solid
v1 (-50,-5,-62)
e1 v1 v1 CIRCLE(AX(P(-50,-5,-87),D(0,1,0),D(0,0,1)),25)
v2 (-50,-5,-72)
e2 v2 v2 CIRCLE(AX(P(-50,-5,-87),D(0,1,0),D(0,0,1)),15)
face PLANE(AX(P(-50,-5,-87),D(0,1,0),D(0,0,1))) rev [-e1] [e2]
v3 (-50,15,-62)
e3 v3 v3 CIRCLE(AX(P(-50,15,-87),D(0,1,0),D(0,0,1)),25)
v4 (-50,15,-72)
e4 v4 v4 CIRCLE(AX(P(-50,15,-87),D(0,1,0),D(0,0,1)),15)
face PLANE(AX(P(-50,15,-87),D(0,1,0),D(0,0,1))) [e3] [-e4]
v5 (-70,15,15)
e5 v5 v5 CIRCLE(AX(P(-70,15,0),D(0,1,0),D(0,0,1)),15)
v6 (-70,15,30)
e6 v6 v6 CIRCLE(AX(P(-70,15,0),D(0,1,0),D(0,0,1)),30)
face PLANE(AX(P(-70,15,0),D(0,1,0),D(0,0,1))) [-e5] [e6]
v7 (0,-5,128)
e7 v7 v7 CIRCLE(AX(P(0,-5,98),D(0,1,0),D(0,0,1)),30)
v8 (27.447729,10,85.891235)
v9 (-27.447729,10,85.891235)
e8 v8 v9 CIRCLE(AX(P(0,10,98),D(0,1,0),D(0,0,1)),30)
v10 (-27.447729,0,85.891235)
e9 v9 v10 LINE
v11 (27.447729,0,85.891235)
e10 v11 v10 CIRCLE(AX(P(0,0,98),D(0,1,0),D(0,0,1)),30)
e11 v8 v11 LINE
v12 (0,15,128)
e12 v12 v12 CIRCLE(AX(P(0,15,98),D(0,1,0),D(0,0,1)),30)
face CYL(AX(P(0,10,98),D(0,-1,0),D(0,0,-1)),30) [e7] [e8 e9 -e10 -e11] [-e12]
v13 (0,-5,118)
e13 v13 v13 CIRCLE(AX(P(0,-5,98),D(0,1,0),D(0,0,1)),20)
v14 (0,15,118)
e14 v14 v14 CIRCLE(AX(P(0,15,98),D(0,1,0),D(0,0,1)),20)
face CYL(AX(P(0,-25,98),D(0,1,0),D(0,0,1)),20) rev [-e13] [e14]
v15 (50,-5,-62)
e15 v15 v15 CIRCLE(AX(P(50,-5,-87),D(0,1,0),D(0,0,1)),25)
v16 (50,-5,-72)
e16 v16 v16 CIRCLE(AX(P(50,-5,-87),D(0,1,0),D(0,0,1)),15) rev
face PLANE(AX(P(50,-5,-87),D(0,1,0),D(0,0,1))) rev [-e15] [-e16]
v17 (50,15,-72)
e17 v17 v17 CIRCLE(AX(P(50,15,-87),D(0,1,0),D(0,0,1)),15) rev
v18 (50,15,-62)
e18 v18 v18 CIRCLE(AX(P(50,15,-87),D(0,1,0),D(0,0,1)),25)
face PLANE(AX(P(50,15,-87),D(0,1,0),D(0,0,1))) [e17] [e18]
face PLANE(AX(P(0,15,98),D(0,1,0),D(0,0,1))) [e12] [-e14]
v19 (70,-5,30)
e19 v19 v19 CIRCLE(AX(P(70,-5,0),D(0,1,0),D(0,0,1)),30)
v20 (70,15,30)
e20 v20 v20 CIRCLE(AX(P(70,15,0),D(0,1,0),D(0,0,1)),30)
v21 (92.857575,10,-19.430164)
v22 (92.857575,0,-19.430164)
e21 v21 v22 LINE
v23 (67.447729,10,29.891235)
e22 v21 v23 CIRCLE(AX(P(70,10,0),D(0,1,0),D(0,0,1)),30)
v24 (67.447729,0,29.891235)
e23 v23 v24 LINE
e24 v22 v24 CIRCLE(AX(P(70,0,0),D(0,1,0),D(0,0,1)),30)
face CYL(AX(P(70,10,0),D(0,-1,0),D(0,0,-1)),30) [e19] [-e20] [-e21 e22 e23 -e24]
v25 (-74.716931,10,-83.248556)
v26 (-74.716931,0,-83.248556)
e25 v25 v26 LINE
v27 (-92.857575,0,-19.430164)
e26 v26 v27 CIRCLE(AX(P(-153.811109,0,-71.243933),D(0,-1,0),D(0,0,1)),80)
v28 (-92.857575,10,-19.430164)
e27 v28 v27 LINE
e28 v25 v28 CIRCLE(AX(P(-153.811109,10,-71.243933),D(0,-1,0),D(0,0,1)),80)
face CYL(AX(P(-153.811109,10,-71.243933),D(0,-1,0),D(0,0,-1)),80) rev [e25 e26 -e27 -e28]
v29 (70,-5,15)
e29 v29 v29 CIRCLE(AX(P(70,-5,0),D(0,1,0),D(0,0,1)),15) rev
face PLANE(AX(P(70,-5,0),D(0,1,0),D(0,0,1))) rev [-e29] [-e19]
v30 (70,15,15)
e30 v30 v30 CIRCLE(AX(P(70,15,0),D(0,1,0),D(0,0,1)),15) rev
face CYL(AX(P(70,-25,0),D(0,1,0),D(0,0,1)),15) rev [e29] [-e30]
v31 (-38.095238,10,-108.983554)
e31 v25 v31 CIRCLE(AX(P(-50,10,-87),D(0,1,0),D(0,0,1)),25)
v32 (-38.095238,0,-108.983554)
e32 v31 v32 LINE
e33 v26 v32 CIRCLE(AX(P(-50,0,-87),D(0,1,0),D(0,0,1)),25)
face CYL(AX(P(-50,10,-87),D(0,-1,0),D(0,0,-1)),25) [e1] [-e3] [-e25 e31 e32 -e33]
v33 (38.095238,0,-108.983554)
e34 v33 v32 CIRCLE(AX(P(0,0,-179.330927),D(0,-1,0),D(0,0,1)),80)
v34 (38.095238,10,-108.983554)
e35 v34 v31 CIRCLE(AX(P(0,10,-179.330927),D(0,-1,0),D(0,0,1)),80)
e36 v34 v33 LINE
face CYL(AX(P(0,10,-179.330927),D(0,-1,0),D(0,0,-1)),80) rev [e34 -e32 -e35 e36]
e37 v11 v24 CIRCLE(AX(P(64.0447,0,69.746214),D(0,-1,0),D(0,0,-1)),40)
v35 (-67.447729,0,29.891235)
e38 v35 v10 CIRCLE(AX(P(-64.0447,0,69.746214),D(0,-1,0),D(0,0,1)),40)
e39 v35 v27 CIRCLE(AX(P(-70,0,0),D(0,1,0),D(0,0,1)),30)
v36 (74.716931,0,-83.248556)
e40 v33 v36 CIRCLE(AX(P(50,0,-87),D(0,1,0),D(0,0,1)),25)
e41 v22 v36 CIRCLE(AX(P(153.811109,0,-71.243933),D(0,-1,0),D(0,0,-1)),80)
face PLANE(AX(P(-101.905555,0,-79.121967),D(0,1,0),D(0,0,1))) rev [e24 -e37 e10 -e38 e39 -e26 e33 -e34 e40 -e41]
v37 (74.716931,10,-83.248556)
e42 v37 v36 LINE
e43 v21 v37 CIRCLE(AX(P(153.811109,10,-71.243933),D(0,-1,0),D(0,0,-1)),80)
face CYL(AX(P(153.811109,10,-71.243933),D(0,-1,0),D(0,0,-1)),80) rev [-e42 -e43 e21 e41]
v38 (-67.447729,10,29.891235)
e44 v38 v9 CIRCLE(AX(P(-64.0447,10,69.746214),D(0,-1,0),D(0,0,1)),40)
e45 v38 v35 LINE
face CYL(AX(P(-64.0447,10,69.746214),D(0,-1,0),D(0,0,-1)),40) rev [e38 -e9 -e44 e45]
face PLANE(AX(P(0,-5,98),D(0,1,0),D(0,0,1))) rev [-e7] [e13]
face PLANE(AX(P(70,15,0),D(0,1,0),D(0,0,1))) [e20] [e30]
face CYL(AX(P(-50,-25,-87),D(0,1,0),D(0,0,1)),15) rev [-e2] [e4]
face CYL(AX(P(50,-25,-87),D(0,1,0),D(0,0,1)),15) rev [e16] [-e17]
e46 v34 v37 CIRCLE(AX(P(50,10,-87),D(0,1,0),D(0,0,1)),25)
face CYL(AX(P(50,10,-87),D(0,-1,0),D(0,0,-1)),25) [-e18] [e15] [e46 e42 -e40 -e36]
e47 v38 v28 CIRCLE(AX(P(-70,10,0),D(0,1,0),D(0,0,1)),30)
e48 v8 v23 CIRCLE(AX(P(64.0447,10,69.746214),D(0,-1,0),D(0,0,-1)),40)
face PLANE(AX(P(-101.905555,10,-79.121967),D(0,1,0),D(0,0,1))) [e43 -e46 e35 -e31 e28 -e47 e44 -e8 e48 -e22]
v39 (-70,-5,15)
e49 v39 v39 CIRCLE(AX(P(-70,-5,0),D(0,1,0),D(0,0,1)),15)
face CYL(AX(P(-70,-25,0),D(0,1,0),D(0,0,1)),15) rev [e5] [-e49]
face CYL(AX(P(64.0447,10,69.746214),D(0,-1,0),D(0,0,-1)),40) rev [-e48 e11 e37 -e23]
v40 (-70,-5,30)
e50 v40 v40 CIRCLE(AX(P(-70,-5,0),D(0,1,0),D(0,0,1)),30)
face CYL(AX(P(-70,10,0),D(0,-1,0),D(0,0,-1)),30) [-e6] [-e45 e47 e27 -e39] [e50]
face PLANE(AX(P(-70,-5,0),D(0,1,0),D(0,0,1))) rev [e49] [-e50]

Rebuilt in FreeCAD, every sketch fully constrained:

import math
import FreeCAD as App
import Part
import Sketcher

doc = App.newDocument("Part")
body = doc.addObject("PartDesign::Body", "Body")

sketch1 = doc.addObject("Sketcher::SketchObject", "Sketch")
body.addObject(sketch1)
sketch1.AttachmentSupport = (doc.XZ_Plane, [""])
sketch1.MapMode = "FlatFace"
sketch1.addGeometry(Part.ArcOfCircle(Part.Circle(App.Vector(-50, -87, 0), App.Vector(0, 0, 1), 25), math.radians(171), math.radians(298)), False)
sketch1.addGeometry(Part.ArcOfCircle(Part.Circle(App.Vector(-154, -71, 0), App.Vector(0, 0, 1), 80), math.radians(-9), math.radians(40)), False)
sketch1.addGeometry(Part.ArcOfCircle(Part.Circle(App.Vector(-70, 0, 0), App.Vector(0, 0, 1), 30), math.radians(85), math.radians(220)), False)
sketch1.addGeometry(Part.ArcOfCircle(Part.Circle(App.Vector(-64, 70, 0), App.Vector(0, 0, 1), 40), math.radians(-95), math.radians(24)), False)
sketch1.addGeometry(Part.ArcOfCircle(Part.Circle(App.Vector(0, 98, 0), App.Vector(0, 0, 1), 30), math.radians(-24), math.radians(204)), False)
sketch1.addGeometry(Part.ArcOfCircle(Part.Circle(App.Vector(64, 70, 0), App.Vector(0, 0, 1), 40), math.radians(156), math.radians(275)), False)
sketch1.addGeometry(Part.ArcOfCircle(Part.Circle(App.Vector(70, 0, 0), App.Vector(0, 0, 1), 30), math.radians(-40), math.radians(95)), False)
sketch1.addGeometry(Part.ArcOfCircle(Part.Circle(App.Vector(154, -71, 0), App.Vector(0, 0, 1), 80), math.radians(140), math.radians(189)), False)
sketch1.addGeometry(Part.ArcOfCircle(Part.Circle(App.Vector(50, -87, 0), App.Vector(0, 0, 1), 25), math.radians(-118), math.radians(9)), False)
sketch1.addGeometry(Part.ArcOfCircle(Part.Circle(App.Vector(0, -179, 0), App.Vector(0, 0, 1), 80), math.radians(62), math.radians(118)), False)
sketch1.addGeometry(Part.Circle(App.Vector(0, 98, 0), App.Vector(0, 0, 1), 20), False)
sketch1.addGeometry(Part.Circle(App.Vector(-70, 0, 0), App.Vector(0, 0, 1), 15), False)
sketch1.addGeometry(Part.Circle(App.Vector(-50, -87, 0), App.Vector(0, 0, 1), 15), False)
sketch1.addGeometry(Part.Circle(App.Vector(70, 0, 0), App.Vector(0, 0, 1), 15), False)
sketch1.addGeometry(Part.Circle(App.Vector(50, -87, 0), App.Vector(0, 0, 1), 15), False)
sketch1.addConstraint(Sketcher.Constraint("Tangent", 0, 1, 1, 1))
sketch1.addConstraint(Sketcher.Constraint("Tangent", 1, 2, 2, 2))
sketch1.addConstraint(Sketcher.Constraint("Tangent", 2, 1, 3, 1))
sketch1.addConstraint(Sketcher.Constraint("Tangent", 3, 2, 4, 2))
sketch1.addConstraint(Sketcher.Constraint("Tangent", 4, 1, 5, 1))
sketch1.addConstraint(Sketcher.Constraint("Tangent", 5, 2, 6, 2))
sketch1.addConstraint(Sketcher.Constraint("Tangent", 6, 1, 7, 1))
sketch1.addConstraint(Sketcher.Constraint("Tangent", 7, 2, 8, 2))
sketch1.addConstraint(Sketcher.Constraint("Tangent", 8, 1, 9, 1))
sketch1.addConstraint(Sketcher.Constraint("Tangent", 9, 2, 0, 2))
sketch1.addConstraint(Sketcher.Constraint("Coincident", 10, 3, 4, 3))
sketch1.addConstraint(Sketcher.Constraint("Coincident", 11, 3, 2, 3))
sketch1.addConstraint(Sketcher.Constraint("Coincident", 12, 3, 0, 3))
sketch1.addConstraint(Sketcher.Constraint("Coincident", 13, 3, 6, 3))
sketch1.addConstraint(Sketcher.Constraint("Coincident", 14, 3, 8, 3))
sketch1.addConstraint(Sketcher.Constraint("Equal", 2, 4))
sketch1.addConstraint(Sketcher.Constraint("Equal", 3, 5))
sketch1.addConstraint(Sketcher.Constraint("Equal", 4, 6))
sketch1.addConstraint(Sketcher.Constraint("Equal", 1, 7))
sketch1.addConstraint(Sketcher.Constraint("Equal", 0, 8))
sketch1.addConstraint(Sketcher.Constraint("Equal", 7, 9))
sketch1.addConstraint(Sketcher.Constraint("Equal", 11, 12))
sketch1.addConstraint(Sketcher.Constraint("Equal", 12, 13))
sketch1.addConstraint(Sketcher.Constraint("Equal", 13, 14))
sketch1.addConstraint(Sketcher.Constraint("Symmetric", 2, 3, 6, 3, -1, 1))
sketch1.addConstraint(Sketcher.Constraint("Symmetric", 3, 3, 5, 3, -2))
sketch1.addConstraint(Sketcher.Constraint("Symmetric", 0, 3, 8, 3, -2))
sketch1.addConstraint(Sketcher.Constraint("Diameter", 10, 40.0))
sketch1.addConstraint(Sketcher.Constraint("Diameter", 11, 30.0))
sketch1.addConstraint(Sketcher.Constraint("Radius", 0, 25.0))
sketch1.addConstraint(Sketcher.Constraint("Radius", 1, 80.0))
sketch1.addConstraint(Sketcher.Constraint("Radius", 2, 30.0))
sketch1.addConstraint(Sketcher.Constraint("Radius", 3, 40.0))
sketch1.addConstraint(Sketcher.Constraint("DistanceX", 0, 3, -1, 1, 50.0))
sketch1.addConstraint(Sketcher.Constraint("DistanceY", 0, 3, -1, 1, 87.0))
sketch1.addConstraint(Sketcher.Constraint("DistanceX", 2, 3, -1, 1, 70.0))
sketch1.addConstraint(Sketcher.Constraint("DistanceY", -1, 1, 4, 3, 98.0))
pad1 = doc.addObject("PartDesign::Pad", "Pad")
body.addObject(pad1)
pad1.Profile = sketch1
pad1.Length = 10
pad1.Reversed = True

sketch2 = doc.addObject("Sketcher::SketchObject", "Sketch001")
body.addObject(sketch2)
sketch2.AttachmentSupport = (doc.XZ_Plane, [""])
sketch2.MapMode = "FlatFace"
sketch2.AttachmentOffset = App.Placement(App.Vector(0, 0, -10), App.Rotation())
sketch2.addGeometry(Part.Circle(App.Vector(-50, -87, 0), App.Vector(0, 0, 1), 25), False)
sketch2.addGeometry(Part.Circle(App.Vector(50, -87, 0), App.Vector(0, 0, 1), 25), False)
sketch2.addGeometry(Part.Circle(App.Vector(70, 0, 0), App.Vector(0, 0, 1), 30), False)
sketch2.addGeometry(Part.Circle(App.Vector(0, 98, 0), App.Vector(0, 0, 1), 30), False)
sketch2.addGeometry(Part.Circle(App.Vector(-70, 0, 0), App.Vector(0, 0, 1), 30), False)
sketch2.addConstraint(Sketcher.Constraint("Equal", 0, 1))
sketch2.addConstraint(Sketcher.Constraint("Equal", 2, 3))
sketch2.addConstraint(Sketcher.Constraint("Equal", 3, 4))
sketch2.addConstraint(Sketcher.Constraint("Symmetric", 2, 3, 4, 3, -1, 1))
sketch2.addConstraint(Sketcher.Constraint("Symmetric", 0, 3, 1, 3, -2))
sketch2.addConstraint(Sketcher.Constraint("PointOnObject", 2, 3, -1))
sketch2.addConstraint(Sketcher.Constraint("PointOnObject", 3, 3, -2))
sketch2.addConstraint(Sketcher.Constraint("Diameter", 0, 50.0))
sketch2.addConstraint(Sketcher.Constraint("Diameter", 2, 60.0))
sketch2.addConstraint(Sketcher.Constraint("DistanceX", 0, 3, -1, 1, 50.0))
sketch2.addConstraint(Sketcher.Constraint("DistanceY", 0, 3, -1, 1, 87.0))
sketch2.addConstraint(Sketcher.Constraint("DistanceX", -1, 1, 2, 3, 70.0))
sketch2.addConstraint(Sketcher.Constraint("DistanceY", -1, 1, 3, 3, 98.0))
pad2 = doc.addObject("PartDesign::Pad", "Pad001")
body.addObject(pad2)
pad2.Profile = sketch2
pad2.Type = "TwoLengths"
pad2.Length = 5
pad2.Length2 = 15
pad2.Reversed = True

sketch3 = doc.addObject("Sketcher::SketchObject", "Sketch002")
body.addObject(sketch3)
sketch3.AttachmentSupport = (doc.XZ_Plane, [""])
sketch3.MapMode = "FlatFace"
sketch3.addGeometry(Part.Circle(App.Vector(-50, -87, 0), App.Vector(0, 0, 1), 15), False)
sketch3.addGeometry(Part.Circle(App.Vector(-70, 0, 0), App.Vector(0, 0, 1), 15), False)
sketch3.addGeometry(Part.Circle(App.Vector(0, 98, 0), App.Vector(0, 0, 1), 20), False)
sketch3.addGeometry(Part.Circle(App.Vector(70, 0, 0), App.Vector(0, 0, 1), 15), False)
sketch3.addGeometry(Part.Circle(App.Vector(50, -87, 0), App.Vector(0, 0, 1), 15), False)
sketch3.addConstraint(Sketcher.Constraint("Equal", 0, 1))
sketch3.addConstraint(Sketcher.Constraint("Equal", 1, 3))
sketch3.addConstraint(Sketcher.Constraint("Equal", 3, 4))
sketch3.addConstraint(Sketcher.Constraint("Symmetric", 1, 3, 3, 3, -1, 1))
sketch3.addConstraint(Sketcher.Constraint("Symmetric", 0, 3, 4, 3, -2))
sketch3.addConstraint(Sketcher.Constraint("PointOnObject", 1, 3, -1))
sketch3.addConstraint(Sketcher.Constraint("PointOnObject", 2, 3, -2))
sketch3.addConstraint(Sketcher.Constraint("Diameter", 0, 30.0))
sketch3.addConstraint(Sketcher.Constraint("Diameter", 2, 40.0))
sketch3.addConstraint(Sketcher.Constraint("DistanceX", 0, 3, -1, 1, 50.0))
sketch3.addConstraint(Sketcher.Constraint("DistanceY", 0, 3, -1, 1, 87.0))
sketch3.addConstraint(Sketcher.Constraint("DistanceX", 1, 3, -1, 1, 70.0))
sketch3.addConstraint(Sketcher.Constraint("DistanceY", -1, 1, 2, 3, 98.0))
pocket1 = doc.addObject("PartDesign::Pocket", "Pocket")
body.addObject(pocket1)
pocket1.Profile = sketch3
pocket1.Length = 50
pocket1.Midplane = True

doc.recompute()
